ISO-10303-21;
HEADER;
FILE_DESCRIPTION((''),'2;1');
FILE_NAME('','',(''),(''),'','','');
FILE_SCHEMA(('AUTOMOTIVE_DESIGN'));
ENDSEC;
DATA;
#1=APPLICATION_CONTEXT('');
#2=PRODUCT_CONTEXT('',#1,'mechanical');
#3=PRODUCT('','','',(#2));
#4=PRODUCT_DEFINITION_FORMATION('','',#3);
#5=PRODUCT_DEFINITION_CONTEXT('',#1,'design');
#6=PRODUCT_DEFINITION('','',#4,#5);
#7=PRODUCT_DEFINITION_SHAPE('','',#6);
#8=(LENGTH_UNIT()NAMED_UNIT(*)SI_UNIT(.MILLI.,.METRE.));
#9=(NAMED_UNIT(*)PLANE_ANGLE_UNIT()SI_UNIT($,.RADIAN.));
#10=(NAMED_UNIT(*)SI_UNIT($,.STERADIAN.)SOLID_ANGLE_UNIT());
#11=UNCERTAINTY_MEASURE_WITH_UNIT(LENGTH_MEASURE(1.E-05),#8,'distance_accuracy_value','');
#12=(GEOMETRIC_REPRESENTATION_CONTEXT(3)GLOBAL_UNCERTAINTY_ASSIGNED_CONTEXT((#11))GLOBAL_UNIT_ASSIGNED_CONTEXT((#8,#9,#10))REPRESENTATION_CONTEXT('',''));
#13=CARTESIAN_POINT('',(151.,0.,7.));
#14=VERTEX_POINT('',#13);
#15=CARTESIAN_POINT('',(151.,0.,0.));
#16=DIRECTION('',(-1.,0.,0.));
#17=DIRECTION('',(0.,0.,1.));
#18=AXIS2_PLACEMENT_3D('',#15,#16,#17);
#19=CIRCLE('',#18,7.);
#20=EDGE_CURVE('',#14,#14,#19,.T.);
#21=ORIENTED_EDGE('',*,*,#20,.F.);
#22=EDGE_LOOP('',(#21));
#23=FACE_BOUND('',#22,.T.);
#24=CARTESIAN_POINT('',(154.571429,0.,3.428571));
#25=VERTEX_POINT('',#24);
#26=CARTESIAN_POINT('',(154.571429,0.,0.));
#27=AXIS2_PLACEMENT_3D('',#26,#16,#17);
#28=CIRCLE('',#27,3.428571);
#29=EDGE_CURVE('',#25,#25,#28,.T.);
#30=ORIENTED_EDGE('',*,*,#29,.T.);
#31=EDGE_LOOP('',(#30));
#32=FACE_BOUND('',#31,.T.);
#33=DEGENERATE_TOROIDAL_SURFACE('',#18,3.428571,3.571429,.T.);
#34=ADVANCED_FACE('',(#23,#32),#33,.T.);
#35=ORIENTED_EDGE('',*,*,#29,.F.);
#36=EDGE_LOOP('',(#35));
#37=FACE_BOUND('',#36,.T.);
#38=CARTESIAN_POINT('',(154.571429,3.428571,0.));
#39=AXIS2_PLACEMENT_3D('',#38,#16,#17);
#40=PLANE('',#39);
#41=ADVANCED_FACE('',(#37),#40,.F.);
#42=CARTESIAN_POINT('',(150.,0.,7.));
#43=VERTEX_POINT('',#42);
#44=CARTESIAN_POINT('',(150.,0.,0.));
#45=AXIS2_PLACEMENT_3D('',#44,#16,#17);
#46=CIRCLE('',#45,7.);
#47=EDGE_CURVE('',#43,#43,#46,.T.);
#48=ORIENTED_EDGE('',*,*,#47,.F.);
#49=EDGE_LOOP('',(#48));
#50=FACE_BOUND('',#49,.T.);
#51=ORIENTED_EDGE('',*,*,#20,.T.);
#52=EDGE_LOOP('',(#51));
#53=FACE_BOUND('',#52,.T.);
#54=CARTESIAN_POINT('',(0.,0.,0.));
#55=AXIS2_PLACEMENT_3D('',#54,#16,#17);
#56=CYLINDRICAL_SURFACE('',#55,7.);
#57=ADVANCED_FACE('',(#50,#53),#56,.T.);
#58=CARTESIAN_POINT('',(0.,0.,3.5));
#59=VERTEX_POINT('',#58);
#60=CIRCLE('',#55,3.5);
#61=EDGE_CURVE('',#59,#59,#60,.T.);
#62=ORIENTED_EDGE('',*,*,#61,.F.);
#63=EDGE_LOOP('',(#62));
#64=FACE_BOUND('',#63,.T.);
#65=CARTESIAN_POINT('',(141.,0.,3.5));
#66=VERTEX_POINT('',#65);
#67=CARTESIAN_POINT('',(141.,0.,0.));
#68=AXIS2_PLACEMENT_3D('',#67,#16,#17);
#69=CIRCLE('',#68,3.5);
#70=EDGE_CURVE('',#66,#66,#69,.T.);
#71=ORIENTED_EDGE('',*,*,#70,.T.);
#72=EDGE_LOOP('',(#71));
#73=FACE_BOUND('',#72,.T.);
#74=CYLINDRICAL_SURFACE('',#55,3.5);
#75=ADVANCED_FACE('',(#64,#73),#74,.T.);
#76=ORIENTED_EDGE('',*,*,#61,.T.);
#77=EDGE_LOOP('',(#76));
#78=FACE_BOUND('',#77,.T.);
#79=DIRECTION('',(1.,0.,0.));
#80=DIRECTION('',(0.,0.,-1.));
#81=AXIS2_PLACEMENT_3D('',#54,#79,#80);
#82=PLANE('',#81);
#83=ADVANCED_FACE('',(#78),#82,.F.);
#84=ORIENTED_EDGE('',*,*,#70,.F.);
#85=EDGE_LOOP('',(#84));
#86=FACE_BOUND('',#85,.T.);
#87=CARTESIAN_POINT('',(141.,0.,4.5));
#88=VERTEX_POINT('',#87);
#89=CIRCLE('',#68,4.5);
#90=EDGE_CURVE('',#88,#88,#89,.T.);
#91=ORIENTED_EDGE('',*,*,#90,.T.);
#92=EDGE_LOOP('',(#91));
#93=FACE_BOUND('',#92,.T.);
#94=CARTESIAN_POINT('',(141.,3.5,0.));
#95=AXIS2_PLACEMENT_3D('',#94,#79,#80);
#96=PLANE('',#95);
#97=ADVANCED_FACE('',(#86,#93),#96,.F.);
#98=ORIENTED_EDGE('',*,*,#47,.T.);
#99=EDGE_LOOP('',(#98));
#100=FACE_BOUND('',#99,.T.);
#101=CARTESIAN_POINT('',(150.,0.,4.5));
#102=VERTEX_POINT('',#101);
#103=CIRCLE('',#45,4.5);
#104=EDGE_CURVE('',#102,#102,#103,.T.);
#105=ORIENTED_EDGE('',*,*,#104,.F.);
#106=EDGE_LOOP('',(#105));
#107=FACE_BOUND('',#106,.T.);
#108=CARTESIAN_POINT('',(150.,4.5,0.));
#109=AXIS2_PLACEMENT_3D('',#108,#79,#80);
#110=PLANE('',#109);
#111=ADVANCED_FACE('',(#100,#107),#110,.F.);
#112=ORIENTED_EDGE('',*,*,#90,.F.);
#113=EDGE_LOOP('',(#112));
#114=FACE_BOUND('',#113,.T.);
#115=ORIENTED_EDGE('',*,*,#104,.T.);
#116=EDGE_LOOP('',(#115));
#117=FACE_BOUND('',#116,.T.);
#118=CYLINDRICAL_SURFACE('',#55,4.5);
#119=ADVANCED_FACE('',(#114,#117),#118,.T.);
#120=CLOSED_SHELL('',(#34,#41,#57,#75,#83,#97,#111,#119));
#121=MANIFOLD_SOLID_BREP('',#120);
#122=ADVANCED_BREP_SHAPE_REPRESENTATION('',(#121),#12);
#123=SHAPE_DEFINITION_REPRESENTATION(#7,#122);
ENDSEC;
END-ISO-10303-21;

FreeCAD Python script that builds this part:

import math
import FreeCAD as App
import Part
import Sketcher
from FreeCAD import Vector

doc = App.newDocument("Part")
body = doc.addObject("PartDesign::Body", "Body")

sketch1 = body.newObject("Sketcher::SketchObject", "Sketch")
sketch1.AttachmentSupport = (doc.getObject("XY_Plane"), [""])
sketch1.MapMode = "FlatFace"
sketch1.addGeometry(Part.LineSegment(Vector(0, 0, 0), Vector(154.6, 0, 0)), False)
sketch1.addGeometry(Part.LineSegment(Vector(154.6, 0, 0), Vector(154.6, 3.4, 0)), False)
sketch1.addGeometry(Part.ArcOfCircle(Part.Circle(Vector(151, 3.4, 0), Vector(0, 0, 1), 3.6), math.radians(0), math.radians(90)), False)
sketch1.addGeometry(Part.LineSegment(Vector(151, 7, 0), Vector(150, 7, 0)), False)
sketch1.addGeometry(Part.LineSegment(Vector(150, 7, 0), Vector(150, 4.5, 0)), False)
sketch1.addGeometry(Part.LineSegment(Vector(150, 4.5, 0), Vector(141, 4.5, 0)), False)
sketch1.addGeometry(Part.LineSegment(Vector(141, 4.5, 0), Vector(141, 3.5, 0)), False)
sketch1.addGeometry(Part.LineSegment(Vector(141, 3.5, 0), Vector(0, 3.5, 0)), False)
sketch1.addGeometry(Part.LineSegment(Vector(0, 3.5, 0), Vector(0, 0, 0)), False)
sketch1.addConstraint(Sketcher.Constraint("Coincident", 0, 2, 1, 1))
sketch1.addConstraint(Sketcher.Constraint("Tangent", 1, 2, 2, 1))
sketch1.addConstraint(Sketcher.Constraint("Tangent", 2, 2, 3, 1))
sketch1.addConstraint(Sketcher.Constraint("Coincident", 3, 2, 4, 1))
sketch1.addConstraint(Sketcher.Constraint("Coincident", 4, 2, 5, 1))
sketch1.addConstraint(Sketcher.Constraint("Coincident", 5, 2, 6, 1))
sketch1.addConstraint(Sketcher.Constraint("Coincident", 6, 2, 7, 1))
sketch1.addConstraint(Sketcher.Constraint("Coincident", 7, 2, 8, 1))
sketch1.addConstraint(Sketcher.Constraint("Coincident", 8, 2, 0, 1))
sketch1.addConstraint(Sketcher.Constraint("Horizontal", 0))
sketch1.addConstraint(Sketcher.Constraint("Vertical", 1))
sketch1.addConstraint(Sketcher.Constraint("Horizontal", 3))
sketch1.addConstraint(Sketcher.Constraint("Vertical", 4))
sketch1.addConstraint(Sketcher.Constraint("Horizontal", 5))
sketch1.addConstraint(Sketcher.Constraint("Vertical", 6))
sketch1.addConstraint(Sketcher.Constraint("Horizontal", 7))
sketch1.addConstraint(Sketcher.Constraint("Vertical", 8))
sketch1.addConstraint(Sketcher.Constraint("Coincident", 8, 2, -1, 1))
sketch1.addConstraint(Sketcher.Constraint("Equal", 3, 6))
sketch1.addConstraint(Sketcher.Constraint("DistanceX", 3, 2, 3, 1, 1.0))
sketch1.addConstraint(Sketcher.Constraint("DistanceX", 5, 2, 5, 1, 9.0))
sketch1.addConstraint(Sketcher.Constraint("DistanceX", 7, 2, 7, 1, 141.0))
sketch1.addConstraint(Sketcher.Constraint("DistanceY", 4, 2, 4, 1, 2.5))
sketch1.addConstraint(Sketcher.Constraint("DistanceY", 8, 2, 8, 1, 3.5))
sketch1.addConstraint(Sketcher.Constraint("Radius", 2, 3.571429))
revolution = body.newObject("PartDesign::Revolution", "Revolution")
revolution.Profile = sketch1
revolution.ReferenceAxis = (sketch1, ["H_Axis"])
revolution.Angle = 360

doc.recompute()
